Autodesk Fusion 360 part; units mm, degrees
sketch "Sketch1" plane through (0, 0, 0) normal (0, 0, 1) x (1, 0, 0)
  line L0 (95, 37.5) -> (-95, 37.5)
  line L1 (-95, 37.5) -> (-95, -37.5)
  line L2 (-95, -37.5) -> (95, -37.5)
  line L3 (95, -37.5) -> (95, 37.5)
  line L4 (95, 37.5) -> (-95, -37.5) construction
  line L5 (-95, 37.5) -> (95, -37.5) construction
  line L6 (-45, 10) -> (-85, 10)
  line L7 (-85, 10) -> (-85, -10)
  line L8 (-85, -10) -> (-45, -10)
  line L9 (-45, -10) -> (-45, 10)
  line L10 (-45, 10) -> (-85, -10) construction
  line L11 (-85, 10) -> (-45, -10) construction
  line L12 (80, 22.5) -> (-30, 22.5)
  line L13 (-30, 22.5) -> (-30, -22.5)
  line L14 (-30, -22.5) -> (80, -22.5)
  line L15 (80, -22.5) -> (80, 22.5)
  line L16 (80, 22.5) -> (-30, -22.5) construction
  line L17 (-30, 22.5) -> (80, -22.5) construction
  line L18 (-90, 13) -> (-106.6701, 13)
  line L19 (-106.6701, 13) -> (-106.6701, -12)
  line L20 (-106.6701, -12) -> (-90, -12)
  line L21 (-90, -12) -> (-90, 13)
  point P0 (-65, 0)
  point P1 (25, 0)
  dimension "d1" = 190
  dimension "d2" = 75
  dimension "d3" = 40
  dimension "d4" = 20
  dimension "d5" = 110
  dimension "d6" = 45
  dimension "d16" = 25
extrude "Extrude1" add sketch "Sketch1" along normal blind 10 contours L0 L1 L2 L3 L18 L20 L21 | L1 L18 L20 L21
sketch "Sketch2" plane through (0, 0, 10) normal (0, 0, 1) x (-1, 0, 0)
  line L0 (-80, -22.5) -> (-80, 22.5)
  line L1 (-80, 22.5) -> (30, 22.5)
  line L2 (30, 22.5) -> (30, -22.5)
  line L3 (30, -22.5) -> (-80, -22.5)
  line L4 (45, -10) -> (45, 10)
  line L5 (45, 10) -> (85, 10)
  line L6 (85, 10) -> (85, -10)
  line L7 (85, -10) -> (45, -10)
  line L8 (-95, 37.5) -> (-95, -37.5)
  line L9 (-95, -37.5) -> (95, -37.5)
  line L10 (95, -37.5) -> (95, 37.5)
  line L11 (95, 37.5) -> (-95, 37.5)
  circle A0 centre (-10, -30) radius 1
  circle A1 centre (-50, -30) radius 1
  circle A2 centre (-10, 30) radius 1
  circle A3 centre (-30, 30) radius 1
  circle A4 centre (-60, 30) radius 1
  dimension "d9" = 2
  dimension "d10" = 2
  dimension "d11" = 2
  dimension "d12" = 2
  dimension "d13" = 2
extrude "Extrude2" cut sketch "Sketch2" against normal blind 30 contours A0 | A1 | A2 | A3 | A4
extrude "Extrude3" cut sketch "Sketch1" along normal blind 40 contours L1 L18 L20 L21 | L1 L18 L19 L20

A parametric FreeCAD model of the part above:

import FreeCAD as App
import Part
import Sketcher

V = App.Vector

doc = App.newDocument("Part")
body = doc.addObject("PartDesign::Body", "Body")

# Sketch on XY plane
sketch1 = body.newObject("Sketcher::SketchObject", "Sketch")
sketch1.AttachmentSupport = (doc.getObject("XY_Plane"), [""])
sketch1.MapMode = "FlatFace"
sketch1.addGeometry(Part.LineSegment(V(95, -38, 0), V(95, 38, 0)), False)
sketch1.addGeometry(Part.LineSegment(V(95, 38, 0), V(-95, 38, 0)), False)
sketch1.addGeometry(Part.LineSegment(V(-95, 38, 0), V(-95, -38, 0)), False)
sketch1.addGeometry(Part.LineSegment(V(-95, -38, 0), V(95, -38, 0)), False)
sketch1.addGeometry(Part.LineSegment(V(-85, 10, 0), V(-45, 10, 0)), False)
sketch1.addGeometry(Part.LineSegment(V(-45, 10, 0), V(-45, -10, 0)), False)
sketch1.addGeometry(Part.LineSegment(V(-45, -10, 0), V(-85, -10, 0)), False)
sketch1.addGeometry(Part.LineSegment(V(-85, -10, 0), V(-85, 10, 0)), False)
sketch1.addGeometry(Part.LineSegment(V(-30, 22, 0), V(80, 22, 0)), False)
sketch1.addGeometry(Part.LineSegment(V(80, 22, 0), V(80, -22, 0)), False)
sketch1.addGeometry(Part.LineSegment(V(80, -22, 0), V(-30, -22, 0)), False)
sketch1.addGeometry(Part.LineSegment(V(-30, -22, 0), V(-30, 22, 0)), False)
sketch1.addConstraint(Sketcher.Constraint("Coincident", 0, 2, 1, 1))
sketch1.addConstraint(Sketcher.Constraint("Coincident", 1, 2, 2, 1))
sketch1.addConstraint(Sketcher.Constraint("Coincident", 2, 2, 3, 1))
sketch1.addConstraint(Sketcher.Constraint("Coincident", 3, 2, 0, 1))
sketch1.addConstraint(Sketcher.Constraint("Coincident", 4, 2, 5, 1))
sketch1.addConstraint(Sketcher.Constraint("Coincident", 5, 2, 6, 1))
sketch1.addConstraint(Sketcher.Constraint("Coincident", 6, 2, 7, 1))
sketch1.addConstraint(Sketcher.Constraint("Coincident", 7, 2, 4, 1))
sketch1.addConstraint(Sketcher.Constraint("Coincident", 8, 2, 9, 1))
sketch1.addConstraint(Sketcher.Constraint("Coincident", 9, 2, 10, 1))
sketch1.addConstraint(Sketcher.Constraint("Coincident", 10, 2, 11, 1))
sketch1.addConstraint(Sketcher.Constraint("Coincident", 11, 2, 8, 1))
sketch1.addConstraint(Sketcher.Constraint("Vertical", 0))
sketch1.addConstraint(Sketcher.Constraint("Horizontal", 1))
sketch1.addConstraint(Sketcher.Constraint("Vertical", 2))
sketch1.addConstraint(Sketcher.Constraint("Horizontal", 3))
sketch1.addConstraint(Sketcher.Constraint("Horizontal", 4))
sketch1.addConstraint(Sketcher.Constraint("Vertical", 5))
sketch1.addConstraint(Sketcher.Constraint("Horizontal", 6))
sketch1.addConstraint(Sketcher.Constraint("Vertical", 7))
sketch1.addConstraint(Sketcher.Constraint("Horizontal", 8))
sketch1.addConstraint(Sketcher.Constraint("Vertical", 9))
sketch1.addConstraint(Sketcher.Constraint("Horizontal", 10))
sketch1.addConstraint(Sketcher.Constraint("Vertical", 11))
sketch1.addConstraint(Sketcher.Constraint("Symmetric", 0, 2, 2, 2, -1, 1))
sketch1.addConstraint(Sketcher.Constraint("DistanceX", 1, 2, 1, 1, 190.0))
sketch1.addConstraint(Sketcher.Constraint("DistanceX", 4, 1, 4, 2, 40.0))
sketch1.addConstraint(Sketcher.Constraint("DistanceX", 8, 1, 8, 2, 110.0))
sketch1.addConstraint(Sketcher.Constraint("DistanceY", 0, 1, 0, 2, 75.0))
sketch1.addConstraint(Sketcher.Constraint("DistanceY", 5, 2, 5, 1, 20.0))
sketch1.addConstraint(Sketcher.Constraint("DistanceY", 9, 2, 9, 1, 45.0))
sketch1.addConstraint(Sketcher.Constraint("DistanceX", 4, 2, -1, 1, 45.0))
sketch1.addConstraint(Sketcher.Constraint("DistanceY", -1, 1, 4, 2, 10.0))
sketch1.addConstraint(Sketcher.Constraint("DistanceX", -1, 1, 8, 2, 80.0))
sketch1.addConstraint(Sketcher.Constraint("DistanceY", 8, 2, 0, 2, 15.0))
pad1 = body.newObject("PartDesign::Pad", "Pad")
pad1.Profile = sketch1
pad1.Length = 10

# Sketch on XY plane
sketch2 = body.newObject("Sketcher::SketchObject", "Sketch001")
sketch2.AttachmentSupport = (doc.getObject("XY_Plane"), [""])
sketch2.MapMode = "FlatFace"
sketch2.AttachmentOffset = App.Placement(V(0, 0, 10), App.Rotation())
sketch2.addGeometry(Part.Circle(V(10, 30, 0), V(0, 0, 1), 1), False)
sketch2.addGeometry(Part.Circle(V(50, 30, 0), V(0, 0, 1), 1), False)
sketch2.addGeometry(Part.Circle(V(10, -30, 0), V(0, 0, 1), 1), False)
sketch2.addGeometry(Part.Circle(V(30, -30, 0), V(0, 0, 1), 1), False)
sketch2.addGeometry(Part.Circle(V(60, -30, 0), V(0, 0, 1), 1), False)
sketch2.addConstraint(Sketcher.Constraint("Equal", 0, 1))
sketch2.addConstraint(Sketcher.Constraint("Equal", 1, 2))
sketch2.addConstraint(Sketcher.Constraint("Equal", 2, 3))
sketch2.addConstraint(Sketcher.Constraint("Equal", 3, 4))
sketch2.addConstraint(Sketcher.Constraint("Symmetric", 0, 3, 2, 3, -1))
sketch2.addConstraint(Sketcher.Constraint("Horizontal", 0, 3, 1, 3))
sketch2.addConstraint(Sketcher.Constraint("Horizontal", 2, 3, 3, 3))
sketch2.addConstraint(Sketcher.Constraint("Horizontal", 3, 3, 4, 3))
sketch2.addConstraint(Sketcher.Constraint("Diameter", 0, 2.0))
sketch2.addConstraint(Sketcher.Constraint("DistanceX", -1, 1, 0, 3, 10.0))
sketch2.addConstraint(Sketcher.Constraint("DistanceY", -1, 1, 0, 3, 30.0))
sketch2.addConstraint(Sketcher.Constraint("DistanceX", -1, 1, 1, 3, 50.0))
sketch2.addConstraint(Sketcher.Constraint("DistanceX", -1, 1, 3, 3, 30.0))
sketch2.addConstraint(Sketcher.Constraint("DistanceX", -1, 1, 4, 3, 60.0))
pocket1 = body.newObject("PartDesign::Pocket", "Pocket")
pocket1.Profile = sketch2
pocket1.Length = 30

# Sketch on XY plane
sketch3 = body.newObject("Sketcher::SketchObject", "Sketch002")
sketch3.AttachmentSupport = (doc.getObject("XY_Plane"), [""])
sketch3.MapMode = "FlatFace"
sketch3.addGeometry(Part.LineSegment(V(-90, 13, 0), V(-107, 13, 0)), False)
sketch3.addGeometry(Part.LineSegment(V(-107, 13, 0), V(-107, -12, 0)), False)
sketch3.addGeometry(Part.LineSegment(V(-107, -12, 0), V(-90, -12, 0)), False)
sketch3.addGeometry(Part.LineSegment(V(-90, -12, 0), V(-90, 13, 0)), False)
sketch3.addConstraint(Sketcher.Constraint("Coincident", 0, 2, 1, 1))
sketch3.addConstraint(Sketcher.Constraint("Coincident", 1, 2, 2, 1))
sketch3.addConstraint(Sketcher.Constraint("Coincident", 2, 2, 3, 1))
sketch3.addConstraint(Sketcher.Constraint("Coincident", 3, 2, 0, 1))
sketch3.addConstraint(Sketcher.Constraint("Horizontal", 0))
sketch3.addConstraint(Sketcher.Constraint("Vertical", 1))
sketch3.addConstraint(Sketcher.Constraint("Horizontal", 2))
sketch3.addConstraint(Sketcher.Constraint("Vertical", 3))
sketch3.addConstraint(Sketcher.Constraint("DistanceY", 1, 2, 1, 1, 25.0))
sketch3.addConstraint(Sketcher.Constraint("DistanceY", -1, 1, 0, 2, 13.0))
sketch3.addConstraint(Sketcher.Constraint("DistanceX", 2, 2, -1, 1, 90.0))
sketch3.addConstraint(Sketcher.Constraint("DistanceX", 0, 2, 0, 1, 16.67))
pocket2 = body.newObject("PartDesign::Pocket", "Pocket001")
pocket2.Profile = sketch3
pocket2.Length = 40
pocket2.Reversed = True

doc.recompute()
